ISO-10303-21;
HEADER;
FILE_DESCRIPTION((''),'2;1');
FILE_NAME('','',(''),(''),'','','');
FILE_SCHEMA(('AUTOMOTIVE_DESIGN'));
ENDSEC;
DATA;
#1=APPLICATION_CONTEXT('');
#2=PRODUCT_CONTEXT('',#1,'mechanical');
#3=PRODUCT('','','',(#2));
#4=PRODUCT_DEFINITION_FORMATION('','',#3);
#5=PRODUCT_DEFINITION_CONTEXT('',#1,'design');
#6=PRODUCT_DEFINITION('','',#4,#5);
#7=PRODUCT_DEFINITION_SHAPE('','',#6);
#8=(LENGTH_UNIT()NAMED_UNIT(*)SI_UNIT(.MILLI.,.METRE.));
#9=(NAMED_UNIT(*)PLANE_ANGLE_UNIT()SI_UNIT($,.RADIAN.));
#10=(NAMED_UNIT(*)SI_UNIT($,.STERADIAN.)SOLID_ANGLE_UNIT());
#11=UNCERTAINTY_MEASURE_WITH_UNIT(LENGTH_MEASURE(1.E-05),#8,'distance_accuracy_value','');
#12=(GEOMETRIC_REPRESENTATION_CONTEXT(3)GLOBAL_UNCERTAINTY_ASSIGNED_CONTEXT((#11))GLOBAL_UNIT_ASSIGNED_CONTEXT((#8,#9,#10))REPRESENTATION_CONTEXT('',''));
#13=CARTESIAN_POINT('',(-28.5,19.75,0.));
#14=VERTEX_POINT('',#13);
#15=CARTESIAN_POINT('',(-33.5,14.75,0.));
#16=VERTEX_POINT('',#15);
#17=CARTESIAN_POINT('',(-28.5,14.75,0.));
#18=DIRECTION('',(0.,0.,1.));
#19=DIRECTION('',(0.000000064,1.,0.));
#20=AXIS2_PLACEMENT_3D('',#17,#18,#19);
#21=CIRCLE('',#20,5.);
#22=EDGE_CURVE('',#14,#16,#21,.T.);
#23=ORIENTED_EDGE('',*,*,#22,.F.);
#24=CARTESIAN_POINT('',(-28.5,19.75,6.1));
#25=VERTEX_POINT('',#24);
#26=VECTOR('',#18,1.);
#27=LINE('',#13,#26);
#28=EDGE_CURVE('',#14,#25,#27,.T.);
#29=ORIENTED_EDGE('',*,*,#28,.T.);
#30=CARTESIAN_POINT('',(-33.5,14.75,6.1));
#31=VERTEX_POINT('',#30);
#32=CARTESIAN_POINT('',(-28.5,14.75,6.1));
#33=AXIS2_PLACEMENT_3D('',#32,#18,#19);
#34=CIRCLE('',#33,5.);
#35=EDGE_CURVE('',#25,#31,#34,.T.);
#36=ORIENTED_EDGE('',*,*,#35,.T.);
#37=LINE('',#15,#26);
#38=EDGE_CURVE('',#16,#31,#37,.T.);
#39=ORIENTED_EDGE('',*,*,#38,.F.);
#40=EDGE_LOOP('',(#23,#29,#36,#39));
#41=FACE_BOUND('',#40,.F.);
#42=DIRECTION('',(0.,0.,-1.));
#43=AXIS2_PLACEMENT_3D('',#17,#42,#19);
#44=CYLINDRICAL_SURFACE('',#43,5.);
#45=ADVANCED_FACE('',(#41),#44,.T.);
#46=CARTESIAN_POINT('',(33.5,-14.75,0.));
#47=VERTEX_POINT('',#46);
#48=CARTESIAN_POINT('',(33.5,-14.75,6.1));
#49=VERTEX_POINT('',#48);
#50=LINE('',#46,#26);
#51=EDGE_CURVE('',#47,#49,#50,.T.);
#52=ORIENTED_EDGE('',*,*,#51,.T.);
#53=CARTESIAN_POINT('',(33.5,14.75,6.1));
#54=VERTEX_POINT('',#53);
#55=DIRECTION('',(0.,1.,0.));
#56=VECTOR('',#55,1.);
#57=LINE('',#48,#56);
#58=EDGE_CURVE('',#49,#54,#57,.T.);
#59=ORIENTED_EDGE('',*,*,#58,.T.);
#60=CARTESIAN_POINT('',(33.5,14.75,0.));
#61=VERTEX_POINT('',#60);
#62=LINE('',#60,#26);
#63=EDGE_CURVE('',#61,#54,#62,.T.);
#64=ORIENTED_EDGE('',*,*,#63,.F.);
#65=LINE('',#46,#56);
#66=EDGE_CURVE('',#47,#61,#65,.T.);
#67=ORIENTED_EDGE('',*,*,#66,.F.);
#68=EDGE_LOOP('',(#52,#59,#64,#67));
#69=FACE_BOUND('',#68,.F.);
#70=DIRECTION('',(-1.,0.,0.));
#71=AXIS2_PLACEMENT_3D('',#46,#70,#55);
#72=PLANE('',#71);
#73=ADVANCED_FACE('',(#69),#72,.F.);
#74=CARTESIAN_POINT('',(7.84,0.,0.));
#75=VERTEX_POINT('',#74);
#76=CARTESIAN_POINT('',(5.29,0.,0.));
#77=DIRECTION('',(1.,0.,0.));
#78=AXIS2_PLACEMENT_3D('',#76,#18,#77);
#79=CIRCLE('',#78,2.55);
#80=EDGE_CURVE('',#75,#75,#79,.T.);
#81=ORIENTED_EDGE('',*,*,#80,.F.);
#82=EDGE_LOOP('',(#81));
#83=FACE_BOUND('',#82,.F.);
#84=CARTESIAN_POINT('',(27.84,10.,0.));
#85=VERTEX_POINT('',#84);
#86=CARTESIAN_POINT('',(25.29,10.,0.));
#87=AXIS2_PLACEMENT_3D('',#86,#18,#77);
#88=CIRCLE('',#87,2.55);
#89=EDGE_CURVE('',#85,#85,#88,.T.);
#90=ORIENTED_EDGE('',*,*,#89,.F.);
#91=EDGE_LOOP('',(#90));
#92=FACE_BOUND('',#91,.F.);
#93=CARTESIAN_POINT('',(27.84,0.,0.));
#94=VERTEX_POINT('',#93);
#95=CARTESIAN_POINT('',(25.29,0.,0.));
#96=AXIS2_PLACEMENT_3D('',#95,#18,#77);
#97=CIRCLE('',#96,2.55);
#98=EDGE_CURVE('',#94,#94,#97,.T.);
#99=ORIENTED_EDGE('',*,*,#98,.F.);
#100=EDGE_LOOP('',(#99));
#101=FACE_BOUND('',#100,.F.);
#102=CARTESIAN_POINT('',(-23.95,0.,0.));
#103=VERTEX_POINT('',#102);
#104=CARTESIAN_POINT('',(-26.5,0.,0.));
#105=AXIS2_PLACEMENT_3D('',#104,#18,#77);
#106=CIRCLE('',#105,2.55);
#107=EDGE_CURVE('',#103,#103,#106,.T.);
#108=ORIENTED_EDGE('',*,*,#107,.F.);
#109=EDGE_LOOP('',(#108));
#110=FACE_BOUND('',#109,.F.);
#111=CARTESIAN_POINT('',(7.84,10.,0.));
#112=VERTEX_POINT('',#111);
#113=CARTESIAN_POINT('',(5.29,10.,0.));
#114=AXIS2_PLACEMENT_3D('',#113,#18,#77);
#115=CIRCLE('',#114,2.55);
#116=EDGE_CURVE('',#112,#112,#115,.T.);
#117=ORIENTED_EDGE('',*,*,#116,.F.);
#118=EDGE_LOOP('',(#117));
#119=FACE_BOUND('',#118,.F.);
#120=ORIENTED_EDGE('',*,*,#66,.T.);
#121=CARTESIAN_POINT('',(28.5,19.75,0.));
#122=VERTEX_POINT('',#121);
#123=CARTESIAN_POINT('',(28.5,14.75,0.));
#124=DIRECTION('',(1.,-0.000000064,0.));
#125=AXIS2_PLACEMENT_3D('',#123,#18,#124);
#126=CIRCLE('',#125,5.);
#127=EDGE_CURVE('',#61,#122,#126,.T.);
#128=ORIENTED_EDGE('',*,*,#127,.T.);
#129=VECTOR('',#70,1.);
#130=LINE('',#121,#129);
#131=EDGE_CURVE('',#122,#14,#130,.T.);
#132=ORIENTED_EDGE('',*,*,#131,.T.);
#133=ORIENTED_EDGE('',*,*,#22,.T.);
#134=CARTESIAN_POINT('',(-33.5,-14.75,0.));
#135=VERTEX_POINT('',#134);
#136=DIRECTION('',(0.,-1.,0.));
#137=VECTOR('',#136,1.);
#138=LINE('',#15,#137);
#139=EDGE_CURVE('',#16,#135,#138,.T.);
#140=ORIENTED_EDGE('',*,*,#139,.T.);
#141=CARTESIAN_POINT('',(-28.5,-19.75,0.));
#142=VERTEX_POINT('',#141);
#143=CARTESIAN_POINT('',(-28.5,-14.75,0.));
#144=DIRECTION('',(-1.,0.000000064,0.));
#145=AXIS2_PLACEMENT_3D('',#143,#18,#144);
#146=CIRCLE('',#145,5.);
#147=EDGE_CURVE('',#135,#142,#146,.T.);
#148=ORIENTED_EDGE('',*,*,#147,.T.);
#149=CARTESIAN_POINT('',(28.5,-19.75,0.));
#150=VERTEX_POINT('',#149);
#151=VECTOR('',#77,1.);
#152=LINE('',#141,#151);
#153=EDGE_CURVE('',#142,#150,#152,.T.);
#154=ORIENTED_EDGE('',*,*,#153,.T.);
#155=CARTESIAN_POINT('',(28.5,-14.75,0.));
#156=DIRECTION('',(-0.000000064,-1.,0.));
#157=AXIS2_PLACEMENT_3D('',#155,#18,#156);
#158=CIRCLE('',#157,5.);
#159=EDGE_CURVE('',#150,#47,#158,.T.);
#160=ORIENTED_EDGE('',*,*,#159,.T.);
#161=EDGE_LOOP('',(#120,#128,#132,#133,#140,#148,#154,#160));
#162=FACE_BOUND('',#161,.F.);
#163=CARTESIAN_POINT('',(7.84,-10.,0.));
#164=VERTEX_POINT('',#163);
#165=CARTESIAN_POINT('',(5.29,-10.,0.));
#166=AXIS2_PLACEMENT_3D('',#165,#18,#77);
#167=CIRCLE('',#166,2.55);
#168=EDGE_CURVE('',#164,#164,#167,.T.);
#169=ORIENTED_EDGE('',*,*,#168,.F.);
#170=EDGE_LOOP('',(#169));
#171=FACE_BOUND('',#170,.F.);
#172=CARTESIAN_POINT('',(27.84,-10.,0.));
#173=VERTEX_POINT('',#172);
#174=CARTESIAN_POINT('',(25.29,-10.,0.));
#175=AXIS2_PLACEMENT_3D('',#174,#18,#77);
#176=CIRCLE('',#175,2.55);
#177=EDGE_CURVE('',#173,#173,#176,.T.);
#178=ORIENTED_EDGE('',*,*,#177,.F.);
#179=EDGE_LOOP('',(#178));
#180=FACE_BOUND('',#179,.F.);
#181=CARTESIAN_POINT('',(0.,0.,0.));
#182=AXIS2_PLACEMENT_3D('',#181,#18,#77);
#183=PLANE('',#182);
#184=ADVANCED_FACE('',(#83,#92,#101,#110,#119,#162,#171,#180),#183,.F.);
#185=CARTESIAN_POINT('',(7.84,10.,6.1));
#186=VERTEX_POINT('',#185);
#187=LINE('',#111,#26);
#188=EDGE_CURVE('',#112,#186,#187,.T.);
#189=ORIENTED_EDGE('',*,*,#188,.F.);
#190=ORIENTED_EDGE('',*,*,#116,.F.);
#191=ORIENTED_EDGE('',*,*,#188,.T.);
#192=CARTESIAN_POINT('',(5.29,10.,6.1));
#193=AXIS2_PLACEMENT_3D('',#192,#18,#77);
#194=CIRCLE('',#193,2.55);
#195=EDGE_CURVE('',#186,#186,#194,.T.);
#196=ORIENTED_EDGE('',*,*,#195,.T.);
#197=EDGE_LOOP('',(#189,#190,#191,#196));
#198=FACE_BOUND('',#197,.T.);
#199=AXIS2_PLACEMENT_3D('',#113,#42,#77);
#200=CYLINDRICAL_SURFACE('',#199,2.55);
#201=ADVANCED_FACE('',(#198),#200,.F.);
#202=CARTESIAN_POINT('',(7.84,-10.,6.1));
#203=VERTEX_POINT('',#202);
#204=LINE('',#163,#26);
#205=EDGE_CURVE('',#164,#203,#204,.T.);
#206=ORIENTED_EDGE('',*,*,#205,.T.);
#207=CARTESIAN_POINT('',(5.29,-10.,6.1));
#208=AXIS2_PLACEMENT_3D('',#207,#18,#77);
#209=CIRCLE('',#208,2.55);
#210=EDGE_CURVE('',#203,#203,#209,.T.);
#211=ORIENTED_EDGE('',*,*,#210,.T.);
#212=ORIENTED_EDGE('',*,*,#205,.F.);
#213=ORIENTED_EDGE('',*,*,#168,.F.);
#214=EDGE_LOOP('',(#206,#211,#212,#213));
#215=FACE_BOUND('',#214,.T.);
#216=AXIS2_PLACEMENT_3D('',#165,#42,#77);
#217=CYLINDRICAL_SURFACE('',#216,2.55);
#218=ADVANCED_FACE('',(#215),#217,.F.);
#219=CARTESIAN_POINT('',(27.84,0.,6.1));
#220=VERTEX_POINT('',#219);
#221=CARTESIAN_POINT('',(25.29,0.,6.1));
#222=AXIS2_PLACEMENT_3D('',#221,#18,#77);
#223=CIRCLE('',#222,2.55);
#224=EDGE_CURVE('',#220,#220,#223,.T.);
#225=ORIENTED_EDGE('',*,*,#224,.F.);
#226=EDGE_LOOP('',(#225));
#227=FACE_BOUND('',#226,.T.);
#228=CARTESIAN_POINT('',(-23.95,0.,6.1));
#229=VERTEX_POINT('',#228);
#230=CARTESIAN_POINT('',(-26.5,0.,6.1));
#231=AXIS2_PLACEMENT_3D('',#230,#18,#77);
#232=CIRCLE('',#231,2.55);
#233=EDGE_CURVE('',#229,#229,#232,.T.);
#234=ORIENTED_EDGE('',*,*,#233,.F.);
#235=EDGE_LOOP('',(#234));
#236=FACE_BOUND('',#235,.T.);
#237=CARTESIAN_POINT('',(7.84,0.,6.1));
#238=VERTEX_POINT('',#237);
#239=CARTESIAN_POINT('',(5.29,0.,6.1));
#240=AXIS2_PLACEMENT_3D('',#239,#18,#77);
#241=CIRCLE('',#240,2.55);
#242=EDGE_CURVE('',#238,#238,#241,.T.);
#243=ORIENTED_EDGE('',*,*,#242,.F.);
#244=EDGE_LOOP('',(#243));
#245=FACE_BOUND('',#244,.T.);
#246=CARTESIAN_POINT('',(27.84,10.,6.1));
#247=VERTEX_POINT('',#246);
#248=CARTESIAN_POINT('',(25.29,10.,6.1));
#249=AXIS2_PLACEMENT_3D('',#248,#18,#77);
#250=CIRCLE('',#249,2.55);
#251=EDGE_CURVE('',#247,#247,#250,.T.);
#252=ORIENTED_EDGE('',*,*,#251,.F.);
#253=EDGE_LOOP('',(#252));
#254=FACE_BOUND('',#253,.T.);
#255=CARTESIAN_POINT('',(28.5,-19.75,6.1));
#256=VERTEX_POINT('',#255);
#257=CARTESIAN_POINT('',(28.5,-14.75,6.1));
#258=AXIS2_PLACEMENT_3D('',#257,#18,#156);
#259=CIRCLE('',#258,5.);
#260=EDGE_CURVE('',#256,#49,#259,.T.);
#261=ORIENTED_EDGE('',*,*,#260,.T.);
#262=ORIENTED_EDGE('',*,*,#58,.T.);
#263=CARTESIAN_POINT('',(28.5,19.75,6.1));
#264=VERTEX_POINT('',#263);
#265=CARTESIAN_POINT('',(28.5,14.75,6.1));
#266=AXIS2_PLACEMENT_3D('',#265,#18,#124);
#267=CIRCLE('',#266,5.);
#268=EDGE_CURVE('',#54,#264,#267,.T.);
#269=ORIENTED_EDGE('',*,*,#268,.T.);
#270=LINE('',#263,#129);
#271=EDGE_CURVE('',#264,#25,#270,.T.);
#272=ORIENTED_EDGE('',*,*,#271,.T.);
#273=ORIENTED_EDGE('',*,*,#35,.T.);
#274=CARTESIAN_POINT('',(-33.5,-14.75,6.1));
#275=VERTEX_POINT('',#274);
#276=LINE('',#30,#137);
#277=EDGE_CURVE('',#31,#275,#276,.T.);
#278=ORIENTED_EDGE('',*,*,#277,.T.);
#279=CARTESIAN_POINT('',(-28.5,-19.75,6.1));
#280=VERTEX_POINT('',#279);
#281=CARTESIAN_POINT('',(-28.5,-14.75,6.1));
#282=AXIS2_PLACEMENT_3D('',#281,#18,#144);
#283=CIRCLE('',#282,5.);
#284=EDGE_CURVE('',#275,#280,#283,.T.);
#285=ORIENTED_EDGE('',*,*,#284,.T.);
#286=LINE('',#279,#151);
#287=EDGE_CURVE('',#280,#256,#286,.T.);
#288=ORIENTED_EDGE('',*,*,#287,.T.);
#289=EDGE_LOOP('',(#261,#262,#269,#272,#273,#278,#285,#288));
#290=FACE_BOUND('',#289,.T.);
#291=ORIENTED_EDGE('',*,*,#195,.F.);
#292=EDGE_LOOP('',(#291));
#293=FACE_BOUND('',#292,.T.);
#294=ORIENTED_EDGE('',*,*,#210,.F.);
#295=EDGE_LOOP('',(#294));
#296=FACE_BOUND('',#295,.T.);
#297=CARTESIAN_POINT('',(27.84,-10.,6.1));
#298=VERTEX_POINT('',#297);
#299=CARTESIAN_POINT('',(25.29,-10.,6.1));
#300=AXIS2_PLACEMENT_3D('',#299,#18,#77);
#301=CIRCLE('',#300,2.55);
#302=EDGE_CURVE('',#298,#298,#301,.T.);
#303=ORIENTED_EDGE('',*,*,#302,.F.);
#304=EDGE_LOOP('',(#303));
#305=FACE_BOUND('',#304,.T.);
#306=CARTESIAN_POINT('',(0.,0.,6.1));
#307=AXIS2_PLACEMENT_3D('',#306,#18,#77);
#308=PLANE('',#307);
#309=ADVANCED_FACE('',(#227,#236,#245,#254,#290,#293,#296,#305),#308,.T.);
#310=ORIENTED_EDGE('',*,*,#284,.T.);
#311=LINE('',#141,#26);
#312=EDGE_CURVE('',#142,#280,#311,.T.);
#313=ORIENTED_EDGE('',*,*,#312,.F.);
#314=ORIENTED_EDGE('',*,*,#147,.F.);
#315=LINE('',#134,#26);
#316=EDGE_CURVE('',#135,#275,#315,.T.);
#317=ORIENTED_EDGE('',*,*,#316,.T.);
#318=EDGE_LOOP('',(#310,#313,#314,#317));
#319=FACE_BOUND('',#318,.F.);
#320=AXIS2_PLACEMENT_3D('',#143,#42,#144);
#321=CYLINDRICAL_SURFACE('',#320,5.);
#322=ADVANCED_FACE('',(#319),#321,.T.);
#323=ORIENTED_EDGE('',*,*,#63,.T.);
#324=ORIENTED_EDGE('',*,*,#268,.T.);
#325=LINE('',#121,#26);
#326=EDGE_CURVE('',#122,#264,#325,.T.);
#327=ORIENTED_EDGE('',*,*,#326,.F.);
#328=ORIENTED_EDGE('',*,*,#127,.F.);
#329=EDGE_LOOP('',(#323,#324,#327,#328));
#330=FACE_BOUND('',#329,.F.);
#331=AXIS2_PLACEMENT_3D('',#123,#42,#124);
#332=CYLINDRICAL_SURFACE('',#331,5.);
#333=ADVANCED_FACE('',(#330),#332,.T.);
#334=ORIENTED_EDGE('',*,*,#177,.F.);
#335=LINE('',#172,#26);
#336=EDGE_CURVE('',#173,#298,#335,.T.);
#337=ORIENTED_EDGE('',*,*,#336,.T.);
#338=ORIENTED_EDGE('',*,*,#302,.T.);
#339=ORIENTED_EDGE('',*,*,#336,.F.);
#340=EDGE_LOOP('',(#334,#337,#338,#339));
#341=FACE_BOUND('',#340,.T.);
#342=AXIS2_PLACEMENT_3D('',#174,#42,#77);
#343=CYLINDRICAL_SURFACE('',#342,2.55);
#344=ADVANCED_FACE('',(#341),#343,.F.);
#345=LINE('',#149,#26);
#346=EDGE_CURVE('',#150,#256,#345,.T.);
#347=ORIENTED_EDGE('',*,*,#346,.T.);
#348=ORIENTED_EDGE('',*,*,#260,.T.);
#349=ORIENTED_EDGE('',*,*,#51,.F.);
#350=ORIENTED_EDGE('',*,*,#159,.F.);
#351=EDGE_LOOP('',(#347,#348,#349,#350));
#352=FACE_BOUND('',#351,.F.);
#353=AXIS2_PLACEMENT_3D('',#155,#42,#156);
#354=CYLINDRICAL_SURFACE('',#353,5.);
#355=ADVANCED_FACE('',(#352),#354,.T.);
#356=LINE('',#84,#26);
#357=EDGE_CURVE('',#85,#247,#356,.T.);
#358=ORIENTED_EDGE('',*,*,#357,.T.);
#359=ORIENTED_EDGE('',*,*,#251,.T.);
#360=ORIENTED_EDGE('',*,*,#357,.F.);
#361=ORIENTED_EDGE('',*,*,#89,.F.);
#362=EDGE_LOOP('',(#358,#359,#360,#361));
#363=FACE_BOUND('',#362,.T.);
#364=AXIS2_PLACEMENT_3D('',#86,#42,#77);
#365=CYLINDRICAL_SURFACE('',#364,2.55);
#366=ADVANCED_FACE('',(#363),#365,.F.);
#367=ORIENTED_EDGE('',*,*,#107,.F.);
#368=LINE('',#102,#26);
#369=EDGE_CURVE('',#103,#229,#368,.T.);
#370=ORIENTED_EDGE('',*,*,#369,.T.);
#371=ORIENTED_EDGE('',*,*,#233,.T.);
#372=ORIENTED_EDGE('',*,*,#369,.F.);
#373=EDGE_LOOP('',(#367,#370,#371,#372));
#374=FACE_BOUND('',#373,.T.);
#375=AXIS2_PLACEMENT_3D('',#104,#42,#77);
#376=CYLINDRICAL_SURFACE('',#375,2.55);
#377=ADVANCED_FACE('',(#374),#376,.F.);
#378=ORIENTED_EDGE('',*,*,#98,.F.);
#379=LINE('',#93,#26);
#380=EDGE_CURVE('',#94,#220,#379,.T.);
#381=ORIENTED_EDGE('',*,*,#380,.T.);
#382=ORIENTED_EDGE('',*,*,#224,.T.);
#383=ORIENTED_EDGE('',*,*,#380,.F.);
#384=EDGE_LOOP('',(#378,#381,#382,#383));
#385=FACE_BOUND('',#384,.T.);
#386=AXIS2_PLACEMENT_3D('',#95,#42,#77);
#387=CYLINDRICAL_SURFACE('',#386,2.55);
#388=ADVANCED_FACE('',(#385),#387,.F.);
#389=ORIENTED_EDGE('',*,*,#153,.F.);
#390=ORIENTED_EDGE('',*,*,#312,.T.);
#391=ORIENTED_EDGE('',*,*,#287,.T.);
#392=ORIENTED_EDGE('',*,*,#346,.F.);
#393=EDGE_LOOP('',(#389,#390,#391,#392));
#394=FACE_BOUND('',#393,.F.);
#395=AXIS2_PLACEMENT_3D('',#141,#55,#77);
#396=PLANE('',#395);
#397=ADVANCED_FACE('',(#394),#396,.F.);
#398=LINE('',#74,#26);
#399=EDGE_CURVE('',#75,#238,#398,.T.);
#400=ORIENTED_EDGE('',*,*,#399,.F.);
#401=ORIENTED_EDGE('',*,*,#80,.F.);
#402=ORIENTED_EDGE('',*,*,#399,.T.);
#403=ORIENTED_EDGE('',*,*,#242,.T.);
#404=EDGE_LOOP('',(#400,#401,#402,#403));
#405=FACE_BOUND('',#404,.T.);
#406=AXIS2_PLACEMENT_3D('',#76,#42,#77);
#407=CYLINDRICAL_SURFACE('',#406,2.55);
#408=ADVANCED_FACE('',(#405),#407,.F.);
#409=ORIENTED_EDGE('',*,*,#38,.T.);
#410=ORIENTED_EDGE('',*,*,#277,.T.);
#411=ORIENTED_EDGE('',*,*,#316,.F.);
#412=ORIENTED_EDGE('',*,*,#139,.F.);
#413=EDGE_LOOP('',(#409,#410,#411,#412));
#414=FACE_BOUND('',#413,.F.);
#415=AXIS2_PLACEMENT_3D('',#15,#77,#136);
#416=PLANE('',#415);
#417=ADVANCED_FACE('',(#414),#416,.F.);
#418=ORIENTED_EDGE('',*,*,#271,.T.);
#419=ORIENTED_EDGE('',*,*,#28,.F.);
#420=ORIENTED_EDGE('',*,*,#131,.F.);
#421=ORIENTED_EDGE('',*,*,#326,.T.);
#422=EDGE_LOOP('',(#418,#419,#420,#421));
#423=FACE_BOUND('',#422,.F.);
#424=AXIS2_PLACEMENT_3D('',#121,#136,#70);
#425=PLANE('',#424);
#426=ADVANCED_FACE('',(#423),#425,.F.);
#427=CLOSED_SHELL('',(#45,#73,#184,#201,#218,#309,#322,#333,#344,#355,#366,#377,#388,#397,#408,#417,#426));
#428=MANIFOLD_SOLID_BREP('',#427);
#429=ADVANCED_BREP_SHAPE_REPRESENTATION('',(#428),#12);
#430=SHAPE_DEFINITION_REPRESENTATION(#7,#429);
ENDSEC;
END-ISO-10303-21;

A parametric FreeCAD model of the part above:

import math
import FreeCAD as App
import Part
import Sketcher
from FreeCAD import Vector
Q = App.Units.Quantity

doc = App.newDocument("Part")
body = doc.addObject("PartDesign::Body", "Body")

# Sketch on XY plane
sketch1 = body.newObject("Sketcher::SketchObject", "Sketch")
sketch1.AttachmentSupport = (doc.getObject("XY_Plane"), [""])
sketch1.MapMode = "FlatFace"
sketch1.addGeometry([
    Part.LineSegment(Vector(28.5, 19.8, 0), Vector(-28.5, 19.8, 0)),  # 0
    Part.ArcOfCircle(Part.Circle(Vector(-28.5, 14.8, 0), Vector(0, 0, 1), 5), math.radians(90), math.radians(180)),  # 1
    Part.LineSegment(Vector(-33.5, 14.8, 0), Vector(-33.5, -14.8, 0)),  # 2
    Part.ArcOfCircle(Part.Circle(Vector(-28.5, -14.8, 0), Vector(0, 0, 1), 5), math.radians(180), math.radians(270)),  # 3
    Part.LineSegment(Vector(-28.5, -19.8, 0), Vector(28.5, -19.8, 0)),  # 4
    Part.ArcOfCircle(Part.Circle(Vector(28.5, -14.8, 0), Vector(0, 0, 1), 5), math.radians(-90), math.radians(0)),  # 5
    Part.LineSegment(Vector(33.5, -14.8, 0), Vector(33.5, 14.8, 0)),  # 6
    Part.ArcOfCircle(Part.Circle(Vector(28.5, 14.8, 0), Vector(0, 0, 1), 5), math.radians(0), math.radians(90)),  # 7
    Part.Circle(Vector(5.3, -10, 0), Vector(0, 0, 1), 2.5),  # 8
    Part.Circle(Vector(25.3, -10, 0), Vector(0, 0, 1), 2.5),  # 9
    Part.Circle(Vector(-26.5, 0, 0), Vector(0, 0, 1), 2.5),  # 10
    Part.Circle(Vector(5.3, 0, 0), Vector(0, 0, 1), 2.5),  # 11
    Part.Circle(Vector(25.3, 0, 0), Vector(0, 0, 1), 2.5),  # 12
    Part.Circle(Vector(5.3, 10, 0), Vector(0, 0, 1), 2.5),  # 13
    Part.Circle(Vector(25.3, 10, 0), Vector(0, 0, 1), 2.5),  # 14
], False)
sketch1.addConstraint([
    Sketcher.Constraint("Tangent", 0, 2, 1, 1),
    Sketcher.Constraint("Tangent", 1, 2, 2, 1),
    Sketcher.Constraint("Tangent", 2, 2, 3, 1),
    Sketcher.Constraint("Tangent", 3, 2, 4, 1),
    Sketcher.Constraint("Tangent", 4, 2, 5, 1),
    Sketcher.Constraint("Tangent", 5, 2, 6, 1),
    Sketcher.Constraint("Tangent", 6, 2, 7, 1),
    Sketcher.Constraint("Tangent", 7, 2, 0, 1),
    Sketcher.Constraint("Horizontal", 0),
    Sketcher.Constraint("Vertical", 2),
    Sketcher.Constraint("Horizontal", 4),
    Sketcher.Constraint("Vertical", 6),
    Sketcher.Constraint("Equal", 1, 3),
    Sketcher.Constraint("Equal", 3, 5),
    Sketcher.Constraint("Equal", 5, 7),
    Sketcher.Constraint("Equal", 8, 9),
    Sketcher.Constraint("Equal", 9, 10),
    Sketcher.Constraint("Equal", 10, 11),
    Sketcher.Constraint("Equal", 11, 12),
    Sketcher.Constraint("Equal", 12, 13),
    Sketcher.Constraint("Equal", 13, 14),
    Sketcher.Constraint("Symmetric", 1, 3, 5, 3, -1, 1),
    Sketcher.Constraint("Symmetric", 8, 3, 13, 3, -1),
    Sketcher.Constraint("Symmetric", 9, 3, 14, 3, -1),
    Sketcher.Constraint("PointOnObject", 10, 3, -1),
    Sketcher.Constraint("PointOnObject", 11, 3, -1),
    Sketcher.Constraint("PointOnObject", 12, 3, -1),
    Sketcher.Constraint("Horizontal", 8, 3, 9, 3),
    Sketcher.Constraint("Vertical", 8, 3, 11, 3),
    Sketcher.Constraint("Vertical", 9, 3, 12, 3),
    Sketcher.Constraint("Radius", 1, Q("5 mm")),
    Sketcher.Constraint("Diameter", 8, Q("5.1 mm")),
    Sketcher.Constraint("DistanceX", 0, 2, 0, 1, Q("57 mm")),
    Sketcher.Constraint("DistanceY", 2, 2, 2, 1, Q("29.5 mm")),
    Sketcher.Constraint("DistanceY", 8, 3, -1, 1, Q("10 mm")),
    Sketcher.Constraint("DistanceX", 8, 3, 9, 3, Q("20 mm")),
    Sketcher.Constraint("DistanceX", 1, 3, 10, 3, Q("2 mm")),
    Sketcher.Constraint("DistanceX", -1, 1, 8, 3, Q("5.29 mm")),
])
pad1 = body.newObject("PartDesign::Pad", "Pad")
pad1.Profile = sketch1
pad1.Length = 6.1

doc.recompute()
